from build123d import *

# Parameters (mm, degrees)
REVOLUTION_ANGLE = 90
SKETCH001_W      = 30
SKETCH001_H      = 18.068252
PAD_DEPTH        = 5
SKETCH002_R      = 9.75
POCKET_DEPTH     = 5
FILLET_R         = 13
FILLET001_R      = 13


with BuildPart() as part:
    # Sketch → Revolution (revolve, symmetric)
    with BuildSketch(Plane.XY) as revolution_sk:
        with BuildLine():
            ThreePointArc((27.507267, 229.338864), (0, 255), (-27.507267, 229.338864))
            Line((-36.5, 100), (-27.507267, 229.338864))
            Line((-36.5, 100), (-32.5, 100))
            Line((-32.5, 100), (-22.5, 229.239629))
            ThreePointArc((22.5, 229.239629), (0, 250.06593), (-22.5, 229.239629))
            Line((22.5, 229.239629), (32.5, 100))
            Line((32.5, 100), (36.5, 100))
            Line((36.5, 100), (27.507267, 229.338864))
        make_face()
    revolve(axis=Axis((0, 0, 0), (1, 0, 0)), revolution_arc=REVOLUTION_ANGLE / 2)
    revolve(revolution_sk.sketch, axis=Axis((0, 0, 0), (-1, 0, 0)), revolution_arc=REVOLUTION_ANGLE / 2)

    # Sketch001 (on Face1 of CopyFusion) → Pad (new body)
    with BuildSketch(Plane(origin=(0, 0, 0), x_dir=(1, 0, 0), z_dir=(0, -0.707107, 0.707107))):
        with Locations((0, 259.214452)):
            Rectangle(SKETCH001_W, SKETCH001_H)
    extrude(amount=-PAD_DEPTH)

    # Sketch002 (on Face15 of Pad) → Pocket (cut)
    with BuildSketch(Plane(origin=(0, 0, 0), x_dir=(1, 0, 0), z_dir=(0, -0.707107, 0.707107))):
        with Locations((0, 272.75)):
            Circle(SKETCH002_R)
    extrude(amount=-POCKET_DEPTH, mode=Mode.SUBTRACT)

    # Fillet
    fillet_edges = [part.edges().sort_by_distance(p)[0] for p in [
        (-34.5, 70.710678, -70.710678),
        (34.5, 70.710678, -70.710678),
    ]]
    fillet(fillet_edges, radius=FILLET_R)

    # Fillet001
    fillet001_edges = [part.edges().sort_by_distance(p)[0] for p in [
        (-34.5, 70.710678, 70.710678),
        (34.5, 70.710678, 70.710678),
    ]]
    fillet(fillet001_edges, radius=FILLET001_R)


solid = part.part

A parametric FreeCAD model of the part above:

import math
import FreeCAD as App
import Part
import Sketcher

V = App.Vector


def edges_at(feature, points):
    """Names of the edges that pass closest to the given points."""
    edges = feature.Shape.Edges
    near = lambda p: min(range(len(edges)), key=lambda i: edges[i].distToShape(Part.Vertex(*p))[0])
    return sorted({f"Edge{near(p) + 1}" for p in points})


def add_polygon(sketch, points):
    """Adds a closed chain of lines whose ends are joined by coincident constraints."""
    first, n = sketch.GeometryCount, len(points)
    for a, b in zip(points, points[1:] + points[:1]):
        sketch.addGeometry(Part.LineSegment(App.Vector(*a, 0), App.Vector(*b, 0)), False)
    for i in range(n):
        sketch.addConstraint(Sketcher.Constraint("Coincident", first + i, 2, first + (i + 1) % n, 1))

doc = App.newDocument("Part")
body = doc.addObject("PartDesign::Body", "Body")

sketch1 = doc.addObject("Sketcher::SketchObject", "Sketch")
body.addObject(sketch1)
sketch1.AttachmentSupport = (doc.XY_Plane, [""])
sketch1.MapMode = "FlatFace"
sketch1.addGeometry(Part.ArcOfCircle(Part.Circle(V(0, 227.426325, 0), V(0, 0, 1), 27.573675), math.radians(3.977288), math.radians(176.022712)), False)
sketch1.addGeometry(Part.LineSegment(V(-27.507267, 229.338864, 0), V(-36.5, 100, 0)), False)
sketch1.addGeometry(Part.LineSegment(V(-36.5, 100, 0), V(-32.5, 100, 0)), False)
sketch1.addGeometry(Part.LineSegment(V(-32.5, 100, 0), V(-22.5, 229.239629, 0)), False)
sketch1.addGeometry(Part.ArcOfCircle(Part.Circle(V(0, 227.498677, 0), V(0, 0, 1), 22.567253), math.radians(4.424482), math.radians(175.575518)), False)
sketch1.addGeometry(Part.LineSegment(V(22.5, 229.239629, 0), V(32.5, 100, 0)), False)
sketch1.addGeometry(Part.LineSegment(V(32.5, 100, 0), V(36.5, 100, 0)), False)
sketch1.addGeometry(Part.LineSegment(V(36.5, 100, 0), V(27.507267, 229.338864, 0)), False)
sketch1.addConstraint(Sketcher.Constraint("Tangent", 0, 2, 1, 1))
sketch1.addConstraint(Sketcher.Constraint("Coincident", 1, 2, 2, 1))
sketch1.addConstraint(Sketcher.Constraint("Coincident", 2, 2, 3, 1))
sketch1.addConstraint(Sketcher.Constraint("Tangent", 3, 2, 4, 2))
sketch1.addConstraint(Sketcher.Constraint("Tangent", 4, 1, 5, 1))
sketch1.addConstraint(Sketcher.Constraint("Coincident", 5, 2, 6, 1))
sketch1.addConstraint(Sketcher.Constraint("Coincident", 6, 2, 7, 1))
sketch1.addConstraint(Sketcher.Constraint("Tangent", 7, 2, 0, 1))
sketch1.addConstraint(Sketcher.Constraint("Horizontal", 2))
sketch1.addConstraint(Sketcher.Constraint("Horizontal", 6))
sketch1.addConstraint(Sketcher.Constraint("Symmetric", 3, 2, 4, 1, -2))
sketch1.addConstraint(Sketcher.Constraint("Symmetric", 1, 2, 6, 2, -2))
sketch1.addConstraint(Sketcher.Constraint("PointOnObject", 0, 3, -2))
sketch1.addConstraint(Sketcher.Constraint("DistanceX", 2, 1, 2, 2, 4.0))
sketch1.addConstraint(Sketcher.Constraint("DistanceY", -1, 1, 1, 2, 100.0))
sketch1.addConstraint(Sketcher.Constraint("DistanceX", 2, 2, 3, 2, 10.0))
sketch1.addConstraint(Sketcher.Constraint("DistanceX", 3, 2, 4, 1, 45.0))
sketch1.addConstraint(Sketcher.Constraint("Radius", 0, 27.573675))
sketch1.addConstraint(Sketcher.Constraint("Distance", 3, 129.62593))
sketch1.addConstraint(Sketcher.Constraint("DistanceY", 0, 3, 4, 3, 0.072352))
revolution = doc.addObject("PartDesign::Revolution", "Revolution")
body.addObject(revolution)
revolution.Profile = sketch1
revolution.ReferenceAxis = (sketch1, ["H_Axis"])
revolution.Angle = 45

sketch2 = doc.addObject("Sketcher::SketchObject", "Sketch001")
body.addObject(sketch2)
sketch2.AttachmentSupport = (doc.XY_Plane, [""])
sketch2.MapMode = "FlatFace"
sketch2.addGeometry(Part.ArcOfCircle(Part.Circle(V(0, 227.426325, 0), V(0, 0, 1), 27.573675), math.radians(3.977288), math.radians(176.022712)), False)
sketch2.addGeometry(Part.LineSegment(V(-27.507267, 229.338864, 0), V(-36.5, 100, 0)), False)
sketch2.addGeometry(Part.LineSegment(V(-36.5, 100, 0), V(-32.5, 100, 0)), False)
sketch2.addGeometry(Part.LineSegment(V(-32.5, 100, 0), V(-22.5, 229.239629, 0)), False)
sketch2.addGeometry(Part.ArcOfCircle(Part.Circle(V(0, 227.498677, 0), V(0, 0, 1), 22.567253), math.radians(4.424482), math.radians(175.575518)), False)
sketch2.addGeometry(Part.LineSegment(V(22.5, 229.239629, 0), V(32.5, 100, 0)), False)
sketch2.addGeometry(Part.LineSegment(V(32.5, 100, 0), V(36.5, 100, 0)), False)
sketch2.addGeometry(Part.LineSegment(V(36.5, 100, 0), V(27.507267, 229.338864, 0)), False)
sketch2.addConstraint(Sketcher.Constraint("Tangent", 0, 2, 1, 1))
sketch2.addConstraint(Sketcher.Constraint("Coincident", 1, 2, 2, 1))
sketch2.addConstraint(Sketcher.Constraint("Coincident", 2, 2, 3, 1))
sketch2.addConstraint(Sketcher.Constraint("Tangent", 3, 2, 4, 2))
sketch2.addConstraint(Sketcher.Constraint("Tangent", 4, 1, 5, 1))
sketch2.addConstraint(Sketcher.Constraint("Coincident", 5, 2, 6, 1))
sketch2.addConstraint(Sketcher.Constraint("Coincident", 6, 2, 7, 1))
sketch2.addConstraint(Sketcher.Constraint("Tangent", 7, 2, 0, 1))
sketch2.addConstraint(Sketcher.Constraint("Horizontal", 2))
sketch2.addConstraint(Sketcher.Constraint("Horizontal", 6))
sketch2.addConstraint(Sketcher.Constraint("Symmetric", 3, 2, 4, 1, -2))
sketch2.addConstraint(Sketcher.Constraint("Symmetric", 1, 2, 6, 2, -2))
sketch2.addConstraint(Sketcher.Constraint("PointOnObject", 0, 3, -2))
sketch2.addConstraint(Sketcher.Constraint("DistanceX", 2, 1, 2, 2, 4.0))
sketch2.addConstraint(Sketcher.Constraint("DistanceY", -1, 1, 1, 2, 100.0))
sketch2.addConstraint(Sketcher.Constraint("DistanceX", 2, 2, 3, 2, 10.0))
sketch2.addConstraint(Sketcher.Constraint("DistanceX", 3, 2, 4, 1, 45.0))
sketch2.addConstraint(Sketcher.Constraint("Radius", 0, 27.573675))
sketch2.addConstraint(Sketcher.Constraint("Distance", 3, 129.62593))
sketch2.addConstraint(Sketcher.Constraint("DistanceY", 0, 3, 4, 3, 0.072352))
revolution2 = doc.addObject("PartDesign::Revolution", "Revolution001")
body.addObject(revolution2)
revolution2.Profile = sketch2
revolution2.ReferenceAxis = (sketch2, ["H_Axis"])
revolution2.Angle = 45
revolution2.Reversed = True

sketch3 = doc.addObject("Sketcher::SketchObject", "Sketch002")
body.addObject(sketch3)
sketch3.Placement = App.Placement(V(0, 0, 0), App.Rotation(V(1, 0, 0), V(0, 0.707106781, 0.707106781), V(0, -0.707106781, 0.707106781), "ZXY"))
add_polygon(sketch3, [(-15, 268.248578), (-15, 250.180326), (15, 250.180326), (15, 268.248578)])
sketch3.addConstraint(Sketcher.Constraint("Vertical", 0))
sketch3.addConstraint(Sketcher.Constraint("Horizontal", 1))
sketch3.addConstraint(Sketcher.Constraint("Vertical", 2))
sketch3.addConstraint(Sketcher.Constraint("Horizontal", 3))
sketch3.addConstraint(Sketcher.Constraint("DistanceX", 1, 1, 1, 2, 30.0))
sketch3.addConstraint(Sketcher.Constraint("DistanceX", 0, 2, -1, 1, 15.0))
sketch3.addConstraint(Sketcher.Constraint("DistanceY", 0, 2, 0, 1, 18.068252))
sketch3.addConstraint(Sketcher.Constraint("DistanceY", -1, 1, 0, 2, 250.180326))
pad1 = doc.addObject("PartDesign::Pad", "Pad")
body.addObject(pad1)
pad1.Profile = sketch3
pad1.Length = 5
pad1.Reversed = True

sketch4 = doc.addObject("Sketcher::SketchObject", "Sketch003")
body.addObject(sketch4)
sketch4.Placement = App.Placement(V(0, 0, 0), App.Rotation(V(1, 0, 0), V(0, 0.707106781, 0.707106781), V(0, -0.707106781, 0.707106781), "ZXY"))
sketch4.addGeometry(Part.Circle(V(0, 272.75, 0), V(0, 0, 1), 9.75), False)
sketch4.addConstraint(Sketcher.Constraint("PointOnObject", 0, 3, -2))
sketch4.addConstraint(Sketcher.Constraint("Diameter", 0, 19.5))
sketch4.addConstraint(Sketcher.Constraint("DistanceY", -1, 1, 0, 3, 272.75))
pocket1 = doc.addObject("PartDesign::Pocket", "Pocket")
body.addObject(pocket1)
pocket1.Profile = sketch4
pocket1.Length = 5
doc.recompute()

fillet = doc.addObject("PartDesign::Fillet", "Fillet")
body.addObject(fillet)
fillet.Base = (pocket1, edges_at(pocket1, [(-34.5, 70.711, -70.711), (34.5, 70.711, -70.711)]))
fillet.Radius = 13
doc.recompute()

fillet2 = doc.addObject("PartDesign::Fillet", "Fillet001")
body.addObject(fillet2)
fillet2.Base = (fillet, edges_at(fillet, [(-34.5, 70.711, 70.711), (34.5, 70.711, 70.711)]))
fillet2.Radius = 13

doc.recompute()
